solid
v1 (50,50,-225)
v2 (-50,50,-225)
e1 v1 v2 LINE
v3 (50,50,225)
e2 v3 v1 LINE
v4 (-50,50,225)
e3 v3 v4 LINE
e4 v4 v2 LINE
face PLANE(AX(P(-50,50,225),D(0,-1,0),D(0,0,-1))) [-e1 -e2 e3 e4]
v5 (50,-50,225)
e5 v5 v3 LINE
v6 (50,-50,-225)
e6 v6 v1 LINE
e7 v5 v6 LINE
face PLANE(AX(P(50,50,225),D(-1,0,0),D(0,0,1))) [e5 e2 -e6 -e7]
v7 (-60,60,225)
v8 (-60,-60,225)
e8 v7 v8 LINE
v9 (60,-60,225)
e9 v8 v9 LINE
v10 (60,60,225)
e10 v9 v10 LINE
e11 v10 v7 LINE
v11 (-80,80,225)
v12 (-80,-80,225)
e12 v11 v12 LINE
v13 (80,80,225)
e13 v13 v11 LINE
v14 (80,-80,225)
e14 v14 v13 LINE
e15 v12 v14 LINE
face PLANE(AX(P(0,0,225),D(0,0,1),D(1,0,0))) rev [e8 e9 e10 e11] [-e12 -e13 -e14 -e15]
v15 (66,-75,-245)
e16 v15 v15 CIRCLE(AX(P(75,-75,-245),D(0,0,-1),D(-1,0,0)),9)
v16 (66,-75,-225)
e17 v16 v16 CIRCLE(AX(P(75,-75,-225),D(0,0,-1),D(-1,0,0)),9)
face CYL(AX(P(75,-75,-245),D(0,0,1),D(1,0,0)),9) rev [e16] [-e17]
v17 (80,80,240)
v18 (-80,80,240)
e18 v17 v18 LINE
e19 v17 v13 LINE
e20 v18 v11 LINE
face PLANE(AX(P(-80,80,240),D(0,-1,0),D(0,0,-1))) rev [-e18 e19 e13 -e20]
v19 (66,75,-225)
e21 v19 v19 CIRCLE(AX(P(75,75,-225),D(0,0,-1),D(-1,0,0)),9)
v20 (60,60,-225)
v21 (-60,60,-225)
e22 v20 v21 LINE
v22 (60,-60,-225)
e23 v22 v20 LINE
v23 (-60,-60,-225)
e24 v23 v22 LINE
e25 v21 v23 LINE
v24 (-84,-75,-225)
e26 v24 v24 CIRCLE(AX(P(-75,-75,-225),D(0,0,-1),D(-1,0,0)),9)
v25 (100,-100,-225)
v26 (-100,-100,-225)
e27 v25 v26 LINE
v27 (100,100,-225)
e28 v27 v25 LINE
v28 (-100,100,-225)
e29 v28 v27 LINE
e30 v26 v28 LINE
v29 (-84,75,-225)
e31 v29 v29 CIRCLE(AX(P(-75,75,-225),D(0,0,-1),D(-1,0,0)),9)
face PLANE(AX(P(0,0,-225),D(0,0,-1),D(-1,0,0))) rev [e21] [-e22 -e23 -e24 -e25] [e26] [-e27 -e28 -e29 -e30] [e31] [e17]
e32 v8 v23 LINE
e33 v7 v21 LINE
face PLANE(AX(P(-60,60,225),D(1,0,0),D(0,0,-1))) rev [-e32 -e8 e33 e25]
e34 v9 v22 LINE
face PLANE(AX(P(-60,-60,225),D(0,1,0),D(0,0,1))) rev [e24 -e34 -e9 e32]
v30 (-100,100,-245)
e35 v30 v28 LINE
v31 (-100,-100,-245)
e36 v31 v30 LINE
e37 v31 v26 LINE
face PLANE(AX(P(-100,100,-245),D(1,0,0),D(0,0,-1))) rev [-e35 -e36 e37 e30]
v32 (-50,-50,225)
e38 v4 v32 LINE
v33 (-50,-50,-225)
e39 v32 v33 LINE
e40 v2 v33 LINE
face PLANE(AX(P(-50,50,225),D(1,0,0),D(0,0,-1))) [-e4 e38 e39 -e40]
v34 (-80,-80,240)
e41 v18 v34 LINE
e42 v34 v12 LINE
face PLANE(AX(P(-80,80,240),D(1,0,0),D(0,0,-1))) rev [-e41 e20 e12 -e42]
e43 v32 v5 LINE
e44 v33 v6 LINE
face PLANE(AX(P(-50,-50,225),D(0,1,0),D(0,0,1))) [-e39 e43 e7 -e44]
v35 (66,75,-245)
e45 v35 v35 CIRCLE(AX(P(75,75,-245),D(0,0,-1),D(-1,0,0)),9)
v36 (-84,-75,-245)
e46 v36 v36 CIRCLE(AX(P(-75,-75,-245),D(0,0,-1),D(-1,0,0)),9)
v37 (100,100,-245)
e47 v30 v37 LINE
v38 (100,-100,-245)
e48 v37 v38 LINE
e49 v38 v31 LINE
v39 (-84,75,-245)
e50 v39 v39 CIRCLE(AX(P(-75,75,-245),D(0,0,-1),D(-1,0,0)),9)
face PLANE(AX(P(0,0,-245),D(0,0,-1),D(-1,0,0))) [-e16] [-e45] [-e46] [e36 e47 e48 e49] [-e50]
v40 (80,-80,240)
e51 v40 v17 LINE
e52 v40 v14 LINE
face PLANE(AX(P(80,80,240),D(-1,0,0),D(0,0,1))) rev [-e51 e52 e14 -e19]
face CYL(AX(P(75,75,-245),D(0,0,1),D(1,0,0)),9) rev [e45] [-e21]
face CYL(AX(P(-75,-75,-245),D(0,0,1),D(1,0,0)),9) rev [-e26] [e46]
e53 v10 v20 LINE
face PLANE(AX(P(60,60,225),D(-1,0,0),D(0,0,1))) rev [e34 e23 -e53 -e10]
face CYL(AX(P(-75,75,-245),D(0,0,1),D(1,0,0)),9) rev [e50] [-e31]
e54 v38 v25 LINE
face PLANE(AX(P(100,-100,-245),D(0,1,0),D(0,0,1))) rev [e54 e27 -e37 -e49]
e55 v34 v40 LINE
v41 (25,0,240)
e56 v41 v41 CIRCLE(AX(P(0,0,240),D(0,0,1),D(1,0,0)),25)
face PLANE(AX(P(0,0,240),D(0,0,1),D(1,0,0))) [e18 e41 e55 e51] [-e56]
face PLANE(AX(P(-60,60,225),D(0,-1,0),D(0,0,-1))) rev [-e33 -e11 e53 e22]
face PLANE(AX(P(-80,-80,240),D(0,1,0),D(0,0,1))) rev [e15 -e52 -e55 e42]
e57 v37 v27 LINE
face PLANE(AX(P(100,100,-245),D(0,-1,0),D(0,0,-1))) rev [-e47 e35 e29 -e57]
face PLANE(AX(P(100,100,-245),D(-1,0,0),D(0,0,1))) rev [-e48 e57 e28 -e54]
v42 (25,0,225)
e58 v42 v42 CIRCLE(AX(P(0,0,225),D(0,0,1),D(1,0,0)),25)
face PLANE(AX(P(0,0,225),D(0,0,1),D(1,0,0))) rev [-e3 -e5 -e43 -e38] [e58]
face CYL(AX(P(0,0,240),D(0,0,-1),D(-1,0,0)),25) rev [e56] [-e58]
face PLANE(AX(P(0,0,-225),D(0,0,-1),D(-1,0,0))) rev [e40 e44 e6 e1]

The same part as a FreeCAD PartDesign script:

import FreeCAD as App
import Part
import Sketcher
Q = App.Units.Quantity


def add_polygon(sketch, points):
    """Adds a closed chain of lines whose ends are joined by coincident constraints."""
    first, n = sketch.GeometryCount, len(points)
    for a, b in zip(points, points[1:] + points[:1]):
        sketch.addGeometry(Part.LineSegment(App.Vector(*a, 0), App.Vector(*b, 0)), False)
    for i in range(n):
        sketch.addConstraint(Sketcher.Constraint("Coincident", first + i, 2, first + (i + 1) % n, 1))

doc = App.newDocument("Part")
body = doc.addObject("PartDesign::Body", "Body")

sketch1 = doc.addObject("Sketcher::SketchObject", "Sketch")
body.addObject(sketch1)
sketch1.AttachmentSupport = (doc.XY_Plane, [""])
sketch1.MapMode = "FlatFace"
add_polygon(sketch1, [(-60, 60), (-60, -60), (60, -60), (60, 60)])
add_polygon(sketch1, [(50, -50), (-50, -50), (-50, 50), (50, 50)])
sketch1.addConstraint([
    Sketcher.Constraint("Vertical", 0),
    Sketcher.Constraint("Horizontal", 1),
    Sketcher.Constraint("Vertical", 2),
    Sketcher.Constraint("Horizontal", 3),
    Sketcher.Constraint("Horizontal", 4),
    Sketcher.Constraint("Vertical", 5),
    Sketcher.Constraint("Horizontal", 6),
    Sketcher.Constraint("Vertical", 7),
    Sketcher.Constraint("Symmetric", 0, 2, 2, 2, -1, 1),
    Sketcher.Constraint("Symmetric", 4, 2, 6, 2, -1, 1),
    Sketcher.Constraint("Equal", 3, 0),
    Sketcher.Constraint("Equal", 6, 5),
    Sketcher.Constraint("DistanceX", 1, 1, 1, 2, Q("120 mm")),
    Sketcher.Constraint("DistanceX", 4, 2, 4, 1, Q("100 mm")),
])
pad1 = doc.addObject("PartDesign::Pad", "Pad")
body.addObject(pad1)
pad1.Profile = sketch1
pad1.Length = 450
pad1.Midplane = True

sketch2 = doc.addObject("Sketcher::SketchObject", "Sketch001")
body.addObject(sketch2)
sketch2.AttachmentSupport = (doc.XY_Plane, [""])
sketch2.MapMode = "FlatFace"
sketch2.AttachmentOffset = App.Placement(App.Vector(0, 0, 225), App.Rotation())
add_polygon(sketch2, [(-80, 80), (-80, -80), (80, -80), (80, 80)])
sketch2.addGeometry(Part.Circle(App.Vector(0, 0, 0), App.Vector(0, 0, 1), 25), False)
sketch2.addConstraint([
    Sketcher.Constraint("Vertical", 0),
    Sketcher.Constraint("Horizontal", 1),
    Sketcher.Constraint("Vertical", 2),
    Sketcher.Constraint("Horizontal", 3),
    Sketcher.Constraint("Coincident", 4, 3, -1, 1),
    Sketcher.Constraint("Symmetric", 0, 2, 2, 2, -1, 1),
    Sketcher.Constraint("Equal", 3, 0),
    Sketcher.Constraint("Diameter", 4, Q("50 mm")),
    Sketcher.Constraint("DistanceX", 1, 1, 1, 2, Q("160 mm")),
])
pad2 = doc.addObject("PartDesign::Pad", "Pad001")
body.addObject(pad2)
pad2.Profile = sketch2
pad2.Length = 15

sketch3 = doc.addObject("Sketcher::SketchObject", "Sketch002")
body.addObject(sketch3)
sketch3.AttachmentSupport = (doc.XY_Plane, [""])
sketch3.MapMode = "FlatFace"
sketch3.AttachmentOffset = App.Placement(App.Vector(0, 0, -225), App.Rotation())
add_polygon(sketch3, [(100, 100), (100, -100), (-100, -100), (-100, 100)])
sketch3.addGeometry(Part.Circle(App.Vector(75, -75, 0), App.Vector(0, 0, 1), 9), False)
sketch3.addGeometry(Part.Circle(App.Vector(-75, -75, 0), App.Vector(0, 0, 1), 9), False)
sketch3.addGeometry(Part.Circle(App.Vector(75, 75, 0), App.Vector(0, 0, 1), 9), False)
sketch3.addGeometry(Part.Circle(App.Vector(-75, 75, 0), App.Vector(0, 0, 1), 9), False)
sketch3.addConstraint([
    Sketcher.Constraint("Vertical", 0),
    Sketcher.Constraint("Horizontal", 1),
    Sketcher.Constraint("Vertical", 2),
    Sketcher.Constraint("Horizontal", 3),
    Sketcher.Constraint("Equal", 4, 5),
    Sketcher.Constraint("Equal", 5, 6),
    Sketcher.Constraint("Equal", 6, 7),
    Sketcher.Constraint("Symmetric", 5, 3, 6, 3, -1, 1),
    Sketcher.Constraint("Symmetric", 4, 3, 7, 3, -1, 1),
    Sketcher.Constraint("Symmetric", 0, 2, 2, 2, -1, 1),
    Sketcher.Constraint("Symmetric", 4, 3, 5, 3, -2),
    Sketcher.Constraint("Equal", 3, 0),
    Sketcher.Constraint("Diameter", 4, Q("18 mm")),
    Sketcher.Constraint("DistanceX", 1, 2, 1, 1, Q("200 mm")),
    Sketcher.Constraint("DistanceX", -1, 1, 4, 3, Q("75 mm")),
    Sketcher.Constraint("DistanceY", 4, 3, -1, 1, Q("75 mm")),
])
pad3 = doc.addObject("PartDesign::Pad", "Pad002")
body.addObject(pad3)
pad3.Profile = sketch3
pad3.Length = 20
pad3.Reversed = True

doc.recompute()
